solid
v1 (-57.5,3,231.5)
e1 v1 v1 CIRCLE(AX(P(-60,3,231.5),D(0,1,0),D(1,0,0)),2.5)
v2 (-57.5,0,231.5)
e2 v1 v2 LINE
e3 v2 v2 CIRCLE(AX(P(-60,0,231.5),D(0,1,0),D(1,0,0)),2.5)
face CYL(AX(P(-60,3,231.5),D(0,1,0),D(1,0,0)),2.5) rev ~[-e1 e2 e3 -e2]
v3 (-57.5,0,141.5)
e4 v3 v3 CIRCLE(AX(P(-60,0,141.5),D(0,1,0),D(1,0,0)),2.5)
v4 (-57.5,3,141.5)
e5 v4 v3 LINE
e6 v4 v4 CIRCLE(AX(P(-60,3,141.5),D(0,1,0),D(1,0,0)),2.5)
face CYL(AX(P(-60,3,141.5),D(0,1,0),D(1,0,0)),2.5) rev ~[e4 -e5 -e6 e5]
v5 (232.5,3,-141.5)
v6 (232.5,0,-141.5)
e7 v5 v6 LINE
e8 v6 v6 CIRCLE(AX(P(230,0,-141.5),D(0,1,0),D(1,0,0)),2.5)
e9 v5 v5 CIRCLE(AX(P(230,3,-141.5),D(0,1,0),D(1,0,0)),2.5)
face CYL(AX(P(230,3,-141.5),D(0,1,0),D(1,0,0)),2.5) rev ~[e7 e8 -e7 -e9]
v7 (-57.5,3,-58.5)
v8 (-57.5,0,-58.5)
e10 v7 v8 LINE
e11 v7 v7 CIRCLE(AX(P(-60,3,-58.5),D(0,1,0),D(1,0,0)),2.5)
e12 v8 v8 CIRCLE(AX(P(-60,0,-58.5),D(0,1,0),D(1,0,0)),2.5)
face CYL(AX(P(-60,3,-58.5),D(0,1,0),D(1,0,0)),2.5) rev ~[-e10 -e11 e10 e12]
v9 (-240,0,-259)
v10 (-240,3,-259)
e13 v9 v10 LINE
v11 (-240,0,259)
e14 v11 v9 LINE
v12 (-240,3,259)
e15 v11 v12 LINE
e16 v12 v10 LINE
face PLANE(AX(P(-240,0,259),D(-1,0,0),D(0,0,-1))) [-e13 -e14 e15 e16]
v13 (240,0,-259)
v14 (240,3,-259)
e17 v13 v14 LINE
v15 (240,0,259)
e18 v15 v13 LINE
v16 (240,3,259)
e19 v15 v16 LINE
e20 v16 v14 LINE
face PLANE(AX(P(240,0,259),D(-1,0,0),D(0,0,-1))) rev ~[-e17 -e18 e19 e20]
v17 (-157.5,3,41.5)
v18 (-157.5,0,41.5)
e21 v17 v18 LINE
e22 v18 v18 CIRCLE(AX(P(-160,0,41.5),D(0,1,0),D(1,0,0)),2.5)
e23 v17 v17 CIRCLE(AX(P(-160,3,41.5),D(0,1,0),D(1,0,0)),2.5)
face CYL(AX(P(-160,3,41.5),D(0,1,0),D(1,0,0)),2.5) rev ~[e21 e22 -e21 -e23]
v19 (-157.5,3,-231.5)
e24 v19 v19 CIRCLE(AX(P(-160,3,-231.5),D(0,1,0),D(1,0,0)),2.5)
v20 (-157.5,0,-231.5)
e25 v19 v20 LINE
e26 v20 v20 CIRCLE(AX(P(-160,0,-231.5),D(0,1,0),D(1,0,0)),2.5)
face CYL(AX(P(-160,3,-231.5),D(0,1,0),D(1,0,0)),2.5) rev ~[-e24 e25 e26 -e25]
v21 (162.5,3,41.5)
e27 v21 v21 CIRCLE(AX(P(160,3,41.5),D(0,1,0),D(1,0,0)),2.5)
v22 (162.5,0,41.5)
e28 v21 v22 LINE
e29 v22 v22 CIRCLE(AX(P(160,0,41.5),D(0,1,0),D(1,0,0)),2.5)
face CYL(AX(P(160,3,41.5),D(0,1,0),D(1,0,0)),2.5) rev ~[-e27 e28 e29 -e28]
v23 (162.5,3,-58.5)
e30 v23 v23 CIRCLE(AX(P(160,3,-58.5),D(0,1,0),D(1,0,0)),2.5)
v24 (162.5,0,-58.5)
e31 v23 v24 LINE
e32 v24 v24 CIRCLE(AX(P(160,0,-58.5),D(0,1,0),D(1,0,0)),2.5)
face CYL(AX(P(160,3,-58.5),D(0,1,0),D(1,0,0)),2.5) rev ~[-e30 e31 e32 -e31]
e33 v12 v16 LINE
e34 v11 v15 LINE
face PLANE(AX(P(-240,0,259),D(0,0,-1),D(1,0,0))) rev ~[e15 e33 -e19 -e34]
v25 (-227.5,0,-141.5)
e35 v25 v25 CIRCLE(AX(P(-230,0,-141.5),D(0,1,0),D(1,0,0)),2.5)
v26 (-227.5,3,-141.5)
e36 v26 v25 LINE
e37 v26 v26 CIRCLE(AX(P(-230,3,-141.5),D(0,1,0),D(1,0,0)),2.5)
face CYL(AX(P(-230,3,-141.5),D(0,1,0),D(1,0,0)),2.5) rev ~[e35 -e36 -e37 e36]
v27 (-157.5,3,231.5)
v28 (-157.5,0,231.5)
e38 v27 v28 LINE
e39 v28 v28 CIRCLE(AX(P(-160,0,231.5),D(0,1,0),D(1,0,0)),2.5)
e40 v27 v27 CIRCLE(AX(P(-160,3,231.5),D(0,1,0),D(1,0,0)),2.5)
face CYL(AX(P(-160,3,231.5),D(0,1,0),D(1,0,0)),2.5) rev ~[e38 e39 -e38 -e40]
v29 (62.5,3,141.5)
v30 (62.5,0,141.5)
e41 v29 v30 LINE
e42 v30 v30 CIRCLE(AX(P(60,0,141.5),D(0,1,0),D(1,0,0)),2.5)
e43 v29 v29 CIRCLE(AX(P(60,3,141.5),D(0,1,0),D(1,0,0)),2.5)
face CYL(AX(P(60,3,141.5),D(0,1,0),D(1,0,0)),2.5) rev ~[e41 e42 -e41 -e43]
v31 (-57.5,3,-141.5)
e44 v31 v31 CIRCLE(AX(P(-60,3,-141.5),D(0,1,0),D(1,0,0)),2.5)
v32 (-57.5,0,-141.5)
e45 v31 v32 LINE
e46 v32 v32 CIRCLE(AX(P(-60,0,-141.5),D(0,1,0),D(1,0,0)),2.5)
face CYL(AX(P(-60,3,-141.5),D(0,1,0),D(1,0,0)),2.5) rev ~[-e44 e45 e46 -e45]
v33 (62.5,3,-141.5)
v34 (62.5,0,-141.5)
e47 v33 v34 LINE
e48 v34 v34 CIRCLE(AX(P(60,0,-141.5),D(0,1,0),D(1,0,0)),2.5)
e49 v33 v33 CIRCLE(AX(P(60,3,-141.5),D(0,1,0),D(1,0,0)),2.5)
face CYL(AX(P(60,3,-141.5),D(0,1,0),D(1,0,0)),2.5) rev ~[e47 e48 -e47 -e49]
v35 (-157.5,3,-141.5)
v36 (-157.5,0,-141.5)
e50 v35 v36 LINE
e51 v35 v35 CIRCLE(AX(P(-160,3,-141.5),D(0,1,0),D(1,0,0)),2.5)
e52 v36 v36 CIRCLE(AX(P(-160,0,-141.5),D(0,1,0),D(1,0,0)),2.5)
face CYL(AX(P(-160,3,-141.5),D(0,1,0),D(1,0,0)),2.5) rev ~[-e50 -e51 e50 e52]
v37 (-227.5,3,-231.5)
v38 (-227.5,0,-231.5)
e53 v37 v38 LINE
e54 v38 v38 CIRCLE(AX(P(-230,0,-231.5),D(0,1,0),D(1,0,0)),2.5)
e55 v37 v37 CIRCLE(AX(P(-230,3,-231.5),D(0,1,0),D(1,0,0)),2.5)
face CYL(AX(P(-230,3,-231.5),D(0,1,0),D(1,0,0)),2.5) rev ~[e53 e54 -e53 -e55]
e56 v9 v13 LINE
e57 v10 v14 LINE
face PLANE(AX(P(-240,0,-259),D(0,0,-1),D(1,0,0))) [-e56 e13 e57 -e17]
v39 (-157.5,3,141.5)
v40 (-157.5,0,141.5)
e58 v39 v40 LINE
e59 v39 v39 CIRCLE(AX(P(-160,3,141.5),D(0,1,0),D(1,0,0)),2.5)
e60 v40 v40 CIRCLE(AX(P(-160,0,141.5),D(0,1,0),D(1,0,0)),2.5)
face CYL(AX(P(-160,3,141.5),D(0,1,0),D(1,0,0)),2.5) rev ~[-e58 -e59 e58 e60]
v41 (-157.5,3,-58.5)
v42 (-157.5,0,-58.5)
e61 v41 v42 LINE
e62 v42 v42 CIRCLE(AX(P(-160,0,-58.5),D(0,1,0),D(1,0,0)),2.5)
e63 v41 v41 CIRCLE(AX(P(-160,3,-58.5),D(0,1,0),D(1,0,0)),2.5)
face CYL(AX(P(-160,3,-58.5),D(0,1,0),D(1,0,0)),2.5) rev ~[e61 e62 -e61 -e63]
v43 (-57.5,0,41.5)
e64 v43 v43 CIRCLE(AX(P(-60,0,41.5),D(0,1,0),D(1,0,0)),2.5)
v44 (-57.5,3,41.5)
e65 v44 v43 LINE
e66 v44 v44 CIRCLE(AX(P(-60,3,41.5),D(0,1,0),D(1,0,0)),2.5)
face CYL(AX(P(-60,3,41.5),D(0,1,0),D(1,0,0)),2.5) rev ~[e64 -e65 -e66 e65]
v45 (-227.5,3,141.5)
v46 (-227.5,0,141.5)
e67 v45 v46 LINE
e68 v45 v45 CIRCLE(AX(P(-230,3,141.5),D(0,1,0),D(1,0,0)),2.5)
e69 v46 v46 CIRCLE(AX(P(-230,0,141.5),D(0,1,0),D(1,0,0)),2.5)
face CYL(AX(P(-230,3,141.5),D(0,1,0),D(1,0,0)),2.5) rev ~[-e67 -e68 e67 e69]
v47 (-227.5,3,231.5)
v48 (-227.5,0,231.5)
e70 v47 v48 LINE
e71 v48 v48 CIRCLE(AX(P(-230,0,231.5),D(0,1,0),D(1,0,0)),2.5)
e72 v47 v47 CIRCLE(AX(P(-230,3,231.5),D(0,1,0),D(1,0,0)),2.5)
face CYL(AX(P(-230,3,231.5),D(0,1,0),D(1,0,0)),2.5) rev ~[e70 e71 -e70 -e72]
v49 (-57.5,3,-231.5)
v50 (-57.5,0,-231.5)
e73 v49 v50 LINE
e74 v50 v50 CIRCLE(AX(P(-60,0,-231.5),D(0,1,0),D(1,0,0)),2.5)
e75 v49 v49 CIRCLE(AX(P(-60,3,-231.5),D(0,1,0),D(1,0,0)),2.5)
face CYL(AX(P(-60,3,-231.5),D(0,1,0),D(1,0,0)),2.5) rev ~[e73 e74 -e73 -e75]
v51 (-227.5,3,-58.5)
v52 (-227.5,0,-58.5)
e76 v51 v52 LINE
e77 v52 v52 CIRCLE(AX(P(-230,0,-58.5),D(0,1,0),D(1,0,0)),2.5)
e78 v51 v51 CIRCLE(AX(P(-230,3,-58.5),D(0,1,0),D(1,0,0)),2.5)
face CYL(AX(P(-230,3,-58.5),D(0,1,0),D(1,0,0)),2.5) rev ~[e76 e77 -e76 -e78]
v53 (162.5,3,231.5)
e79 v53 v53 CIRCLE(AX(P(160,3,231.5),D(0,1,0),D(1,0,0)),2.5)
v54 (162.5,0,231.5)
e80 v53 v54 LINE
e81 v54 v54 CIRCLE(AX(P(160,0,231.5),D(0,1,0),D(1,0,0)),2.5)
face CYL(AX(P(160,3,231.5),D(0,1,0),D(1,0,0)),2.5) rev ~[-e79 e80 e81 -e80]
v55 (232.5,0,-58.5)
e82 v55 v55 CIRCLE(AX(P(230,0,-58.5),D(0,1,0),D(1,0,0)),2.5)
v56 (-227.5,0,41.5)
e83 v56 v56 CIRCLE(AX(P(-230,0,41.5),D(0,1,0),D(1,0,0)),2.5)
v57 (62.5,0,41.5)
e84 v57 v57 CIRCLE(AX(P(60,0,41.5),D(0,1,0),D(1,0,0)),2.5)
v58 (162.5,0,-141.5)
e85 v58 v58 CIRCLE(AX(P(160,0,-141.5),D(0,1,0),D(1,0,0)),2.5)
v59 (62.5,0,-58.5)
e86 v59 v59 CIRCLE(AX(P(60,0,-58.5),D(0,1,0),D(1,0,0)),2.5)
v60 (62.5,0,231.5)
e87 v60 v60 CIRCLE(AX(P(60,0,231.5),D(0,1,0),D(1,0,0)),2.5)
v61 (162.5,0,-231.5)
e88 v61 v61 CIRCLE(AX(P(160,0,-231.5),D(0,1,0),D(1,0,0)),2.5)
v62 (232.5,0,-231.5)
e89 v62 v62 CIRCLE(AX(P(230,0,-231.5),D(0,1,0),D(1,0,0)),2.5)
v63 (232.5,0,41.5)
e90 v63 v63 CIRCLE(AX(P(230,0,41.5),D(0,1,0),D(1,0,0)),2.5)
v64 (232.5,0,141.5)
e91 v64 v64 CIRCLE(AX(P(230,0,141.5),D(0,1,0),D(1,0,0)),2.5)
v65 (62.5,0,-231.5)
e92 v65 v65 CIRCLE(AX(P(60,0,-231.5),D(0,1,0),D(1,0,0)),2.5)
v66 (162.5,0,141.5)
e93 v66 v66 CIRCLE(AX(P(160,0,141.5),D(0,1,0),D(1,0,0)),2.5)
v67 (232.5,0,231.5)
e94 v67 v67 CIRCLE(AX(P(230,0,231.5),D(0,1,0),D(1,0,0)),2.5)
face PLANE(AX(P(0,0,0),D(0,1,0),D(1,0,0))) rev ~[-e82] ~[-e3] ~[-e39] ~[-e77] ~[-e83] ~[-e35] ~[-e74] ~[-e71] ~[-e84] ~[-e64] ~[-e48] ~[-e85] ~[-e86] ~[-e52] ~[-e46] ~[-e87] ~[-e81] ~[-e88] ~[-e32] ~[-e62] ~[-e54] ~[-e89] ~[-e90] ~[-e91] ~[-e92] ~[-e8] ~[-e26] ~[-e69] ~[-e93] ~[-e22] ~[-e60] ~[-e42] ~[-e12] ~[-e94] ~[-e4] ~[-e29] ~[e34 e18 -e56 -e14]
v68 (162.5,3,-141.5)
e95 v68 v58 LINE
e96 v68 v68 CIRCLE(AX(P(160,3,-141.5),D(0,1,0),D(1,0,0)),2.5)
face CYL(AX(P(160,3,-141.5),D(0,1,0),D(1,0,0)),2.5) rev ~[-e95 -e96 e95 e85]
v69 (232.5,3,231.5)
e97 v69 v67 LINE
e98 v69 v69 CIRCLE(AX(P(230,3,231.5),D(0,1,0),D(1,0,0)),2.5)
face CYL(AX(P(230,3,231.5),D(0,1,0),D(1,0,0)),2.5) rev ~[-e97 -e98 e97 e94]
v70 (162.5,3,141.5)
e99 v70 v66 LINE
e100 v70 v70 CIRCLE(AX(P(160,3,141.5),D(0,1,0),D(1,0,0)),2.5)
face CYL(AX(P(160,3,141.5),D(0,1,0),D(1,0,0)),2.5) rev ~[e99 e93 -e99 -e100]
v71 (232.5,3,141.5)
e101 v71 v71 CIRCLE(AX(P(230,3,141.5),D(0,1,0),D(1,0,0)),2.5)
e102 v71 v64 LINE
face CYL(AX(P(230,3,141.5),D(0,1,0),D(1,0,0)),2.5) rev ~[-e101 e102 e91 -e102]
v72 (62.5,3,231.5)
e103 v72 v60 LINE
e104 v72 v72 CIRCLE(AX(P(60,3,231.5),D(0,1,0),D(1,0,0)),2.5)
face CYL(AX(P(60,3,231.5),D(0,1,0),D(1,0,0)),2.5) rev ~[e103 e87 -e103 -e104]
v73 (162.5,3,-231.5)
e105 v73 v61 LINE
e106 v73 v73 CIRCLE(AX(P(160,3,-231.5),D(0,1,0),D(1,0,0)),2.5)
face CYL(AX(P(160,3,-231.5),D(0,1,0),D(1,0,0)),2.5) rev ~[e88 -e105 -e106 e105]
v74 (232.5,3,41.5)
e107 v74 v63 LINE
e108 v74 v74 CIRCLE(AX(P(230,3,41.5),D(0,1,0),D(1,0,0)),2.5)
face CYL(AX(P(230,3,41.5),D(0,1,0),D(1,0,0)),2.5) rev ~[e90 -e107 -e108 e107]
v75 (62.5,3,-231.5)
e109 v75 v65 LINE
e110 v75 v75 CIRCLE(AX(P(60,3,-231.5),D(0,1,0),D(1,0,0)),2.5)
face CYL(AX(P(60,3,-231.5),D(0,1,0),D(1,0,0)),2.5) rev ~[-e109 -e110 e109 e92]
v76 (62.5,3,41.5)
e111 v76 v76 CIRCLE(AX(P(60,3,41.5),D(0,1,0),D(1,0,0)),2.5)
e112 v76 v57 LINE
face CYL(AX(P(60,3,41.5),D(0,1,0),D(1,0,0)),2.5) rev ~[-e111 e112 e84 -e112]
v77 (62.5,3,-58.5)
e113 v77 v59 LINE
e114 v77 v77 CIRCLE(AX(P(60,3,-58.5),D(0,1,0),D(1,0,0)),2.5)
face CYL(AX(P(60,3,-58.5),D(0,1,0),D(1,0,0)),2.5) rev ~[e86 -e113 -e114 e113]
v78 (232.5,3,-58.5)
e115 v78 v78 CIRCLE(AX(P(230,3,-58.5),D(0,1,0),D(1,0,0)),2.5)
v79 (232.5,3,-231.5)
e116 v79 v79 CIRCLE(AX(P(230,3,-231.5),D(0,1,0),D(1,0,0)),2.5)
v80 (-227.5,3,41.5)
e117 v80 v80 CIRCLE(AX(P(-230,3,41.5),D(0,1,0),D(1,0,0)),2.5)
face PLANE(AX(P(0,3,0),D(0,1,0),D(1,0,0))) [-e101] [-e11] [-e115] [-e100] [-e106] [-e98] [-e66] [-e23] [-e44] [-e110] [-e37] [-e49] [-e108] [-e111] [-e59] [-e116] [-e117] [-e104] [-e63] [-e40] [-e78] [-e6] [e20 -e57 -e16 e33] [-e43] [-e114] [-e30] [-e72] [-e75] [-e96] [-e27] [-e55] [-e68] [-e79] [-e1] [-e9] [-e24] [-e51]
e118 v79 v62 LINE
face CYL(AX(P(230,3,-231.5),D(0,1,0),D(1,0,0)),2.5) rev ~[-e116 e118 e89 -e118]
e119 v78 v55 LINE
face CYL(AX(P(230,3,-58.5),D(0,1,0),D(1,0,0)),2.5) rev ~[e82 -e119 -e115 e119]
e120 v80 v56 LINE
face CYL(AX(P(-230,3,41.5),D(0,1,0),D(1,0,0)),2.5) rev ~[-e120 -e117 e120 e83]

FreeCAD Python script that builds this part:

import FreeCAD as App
import Part
import Sketcher
from FreeCAD import Vector


def add_polygon(sketch, points):
    """Adds a closed chain of lines whose ends are joined by coincident constraints."""
    first, n = sketch.GeometryCount, len(points)
    for a, b in zip(points, points[1:] + points[:1]):
        sketch.addGeometry(Part.LineSegment(App.Vector(*a, 0), App.Vector(*b, 0)), False)
    for i in range(n):
        sketch.addConstraint(Sketcher.Constraint("Coincident", first + i, 2, first + (i + 1) % n, 1))

doc = App.newDocument("Part")
body = doc.addObject("PartDesign::Body", "Body")

# Sketch on XZ plane
sketch1 = body.newObject("Sketcher::SketchObject", "Sketch")
sketch1.AttachmentSupport = (doc.getObject("XZ_Plane"), [""])
sketch1.MapMode = "FlatFace"
add_polygon(sketch1, [(-240, -259), (-240, 259), (240, 259), (240, -259)])  # lines 0-3
sketch1.addConstraint(Sketcher.Constraint("Vertical", 0))
sketch1.addConstraint(Sketcher.Constraint("Horizontal", 1))
sketch1.addConstraint(Sketcher.Constraint("Vertical", 2))
sketch1.addConstraint(Sketcher.Constraint("Horizontal", 3))
sketch1.addConstraint(Sketcher.Constraint("Symmetric", 0, 2, 2, 2, -1, 1))
sketch1.addConstraint(Sketcher.Constraint("DistanceX", 1, 1, 1, 2, 480.0))
sketch1.addConstraint(Sketcher.Constraint("DistanceY", 0, 1, 0, 2, 518.0))
pad1 = body.newObject("PartDesign::Pad", "Pad")
pad1.Profile = sketch1
pad1.Length = 3
pad1.Reversed = True

# Sketch on XZ plane
sketch2 = body.newObject("Sketcher::SketchObject", "Sketch001")
sketch2.AttachmentSupport = (doc.getObject("XZ_Plane"), [""])
sketch2.MapMode = "FlatFace"
sketch2.AttachmentOffset = App.Placement(Vector(0, 0, -3), App.Rotation())
sketch2.addGeometry(Part.Circle(Vector(-230, 231.5, 0), Vector(0, 0, 1), 2.5), False)
sketch2.addGeometry(Part.Circle(Vector(-230, -231.5, 0), Vector(0, 0, 1), 2.5), False)
sketch2.addGeometry(Part.Circle(Vector(-230, 141.5, 0), Vector(0, 0, 1), 2.5), False)
sketch2.addGeometry(Part.Circle(Vector(-230, -141.5, 0), Vector(0, 0, 1), 2.5), False)
sketch2.addGeometry(Part.Circle(Vector(-230, 41.5, 0), Vector(0, 0, 1), 2.5), False)
sketch2.addGeometry(Part.Circle(Vector(-230, -58.5, 0), Vector(0, 0, 1), 2.5), False)
sketch2.addGeometry(Part.Circle(Vector(-160, -231.5, 0), Vector(0, 0, 1), 2.5), False)
sketch2.addGeometry(Part.Circle(Vector(-160, -141.5, 0), Vector(0, 0, 1), 2.5), False)
sketch2.addGeometry(Part.Circle(Vector(-160, -58.5, 0), Vector(0, 0, 1), 2.5), False)
sketch2.addGeometry(Part.Circle(Vector(-160, 41.5, 0), Vector(0, 0, 1), 2.5), False)
sketch2.addGeometry(Part.Circle(Vector(-160, 141.5, 0), Vector(0, 0, 1), 2.5), False)
sketch2.addGeometry(Part.Circle(Vector(-160, 231.5, 0), Vector(0, 0, 1), 2.5), False)
sketch2.addGeometry(Part.Circle(Vector(160, 231.5, 0), Vector(0, 0, 1), 2.5), False)
sketch2.addGeometry(Part.Circle(Vector(160, 141.5, 0), Vector(0, 0, 1), 2.5), False)
sketch2.addGeometry(Part.Circle(Vector(160, 41.5, 0), Vector(0, 0, 1), 2.5), False)
sketch2.addGeometry(Part.Circle(Vector(160, -58.5, 0), Vector(0, 0, 1), 2.5), False)
sketch2.addGeometry(Part.Circle(Vector(160, -141.5, 0), Vector(0, 0, 1), 2.5), False)
sketch2.addGeometry(Part.Circle(Vector(160, -231.5, 0), Vector(0, 0, 1), 2.5), False)
sketch2.addGeometry(Part.Circle(Vector(230, 231.5, 0), Vector(0, 0, 1), 2.5), False)
sketch2.addGeometry(Part.Circle(Vector(230, 141.5, 0), Vector(0, 0, 1), 2.5), False)
sketch2.addGeometry(Part.Circle(Vector(230, 41.5, 0), Vector(0, 0, 1), 2.5), False)
sketch2.addGeometry(Part.Circle(Vector(230, -58.5, 0), Vector(0, 0, 1), 2.5), False)
sketch2.addGeometry(Part.Circle(Vector(230, -141.5, 0), Vector(0, 0, 1), 2.5), False)
sketch2.addGeometry(Part.Circle(Vector(230, -231.5, 0), Vector(0, 0, 1), 2.5), False)
sketch2.addGeometry(Part.Circle(Vector(-60, -231.5, 0), Vector(0, 0, 1), 2.5), False)
sketch2.addGeometry(Part.Circle(Vector(-60, -141.5, 0), Vector(0, 0, 1), 2.5), False)
sketch2.addGeometry(Part.Circle(Vector(-60, -58.5, 0), Vector(0, 0, 1), 2.5), False)
sketch2.addGeometry(Part.Circle(Vector(-60, 41.5, 0), Vector(0, 0, 1), 2.5), False)
sketch2.addGeometry(Part.Circle(Vector(-60, 141.5, 0), Vector(0, 0, 1), 2.5), False)
sketch2.addGeometry(Part.Circle(Vector(-60, 231.5, 0), Vector(0, 0, 1), 2.5), False)
sketch2.addGeometry(Part.Circle(Vector(60, 231.5, 0), Vector(0, 0, 1), 2.5), False)
sketch2.addGeometry(Part.Circle(Vector(60, 141.5, 0), Vector(0, 0, 1), 2.5), False)
sketch2.addGeometry(Part.Circle(Vector(60, 41.5, 0), Vector(0, 0, 1), 2.5), False)
sketch2.addGeometry(Part.Circle(Vector(60, -58.5, 0), Vector(0, 0, 1), 2.5), False)
sketch2.addGeometry(Part.Circle(Vector(60, -141.5, 0), Vector(0, 0, 1), 2.5), False)
sketch2.addGeometry(Part.Circle(Vector(60, -231.5, 0), Vector(0, 0, 1), 2.5), False)
sketch2.addConstraint(Sketcher.Constraint("Equal", 0, 1))
sketch2.addConstraint(Sketcher.Constraint("Equal", 1, 2))
sketch2.addConstraint(Sketcher.Constraint("Equal", 2, 3))
sketch2.addConstraint(Sketcher.Constraint("Equal", 3, 4))
sketch2.addConstraint(Sketcher.Constraint("Equal", 4, 5))
sketch2.addConstraint(Sketcher.Constraint("Equal", 5, 6))
sketch2.addConstraint(Sketcher.Constraint("Equal", 6, 7))
sketch2.addConstraint(Sketcher.Constraint("Equal", 7, 8))
sketch2.addConstraint(Sketcher.Constraint("Equal", 8, 9))
sketch2.addConstraint(Sketcher.Constraint("Equal", 9, 10))
sketch2.addConstraint(Sketcher.Constraint("Equal", 10, 11))
sketch2.addConstraint(Sketcher.Constraint("Equal", 11, 12))
sketch2.addConstraint(Sketcher.Constraint("Equal", 12, 13))
sketch2.addConstraint(Sketcher.Constraint("Equal", 13, 14))
sketch2.addConstraint(Sketcher.Constraint("Equal", 14, 15))
sketch2.addConstraint(Sketcher.Constraint("Equal", 15, 16))
sketch2.addConstraint(Sketcher.Constraint("Equal", 16, 17))
sketch2.addConstraint(Sketcher.Constraint("Equal", 17, 18))
sketch2.addConstraint(Sketcher.Constraint("Equal", 18, 19))
sketch2.addConstraint(Sketcher.Constraint("Equal", 19, 20))
sketch2.addConstraint(Sketcher.Constraint("Equal", 20, 21))
sketch2.addConstraint(Sketcher.Constraint("Equal", 21, 22))
sketch2.addConstraint(Sketcher.Constraint("Equal", 22, 23))
sketch2.addConstraint(Sketcher.Constraint("Equal", 23, 24))
sketch2.addConstraint(Sketcher.Constraint("Equal", 24, 25))
sketch2.addConstraint(Sketcher.Constraint("Equal", 25, 26))
sketch2.addConstraint(Sketcher.Constraint("Equal", 26, 27))
sketch2.addConstraint(Sketcher.Constraint("Equal", 27, 28))
sketch2.addConstraint(Sketcher.Constraint("Equal", 28, 29))
sketch2.addConstraint(Sketcher.Constraint("Equal", 29, 30))
sketch2.addConstraint(Sketcher.Constraint("Equal", 30, 31))
sketch2.addConstraint(Sketcher.Constraint("Equal", 31, 32))
sketch2.addConstraint(Sketcher.Constraint("Equal", 32, 33))
sketch2.addConstraint(Sketcher.Constraint("Equal", 33, 34))
sketch2.addConstraint(Sketcher.Constraint("Equal", 34, 35))
sketch2.addConstraint(Sketcher.Constraint("Symmetric", 6, 3, 12, 3, -1, 1))
sketch2.addConstraint(Sketcher.Constraint("Symmetric", 7, 3, 13, 3, -1, 1))
sketch2.addConstraint(Sketcher.Constraint("Symmetric", 10, 3, 16, 3, -1, 1))
sketch2.addConstraint(Sketcher.Constraint("Symmetric", 11, 3, 17, 3, -1, 1))
sketch2.addConstraint(Sketcher.Constraint("Symmetric", 1, 3, 18, 3, -1, 1))
sketch2.addConstraint(Sketcher.Constraint("Symmetric", 3, 3, 19, 3, -1, 1))
sketch2.addConstraint(Sketcher.Constraint("Symmetric", 2, 3, 22, 3, -1, 1))
sketch2.addConstraint(Sketcher.Constraint("Symmetric", 0, 3, 23, 3, -1, 1))
sketch2.addConstraint(Sketcher.Constraint("Symmetric", 24, 3, 30, 3, -1, 1))
sketch2.addConstraint(Sketcher.Constraint("Symmetric", 25, 3, 31, 3, -1, 1))
sketch2.addConstraint(Sketcher.Constraint("Symmetric", 28, 3, 34, 3, -1, 1))
sketch2.addConstraint(Sketcher.Constraint("Symmetric", 29, 3, 35, 3, -1, 1))
sketch2.addConstraint(Sketcher.Constraint("Symmetric", 11, 3, 12, 3, -2))
sketch2.addConstraint(Sketcher.Constraint("Symmetric", 10, 3, 13, 3, -2))
sketch2.addConstraint(Sketcher.Constraint("Symmetric", 9, 3, 14, 3, -2))
sketch2.addConstraint(Sketcher.Constraint("Symmetric", 8, 3, 15, 3, -2))
sketch2.addConstraint(Sketcher.Constraint("Symmetric", 0, 3, 18, 3, -2))
sketch2.addConstraint(Sketcher.Constraint("Symmetric", 2, 3, 19, 3, -2))
sketch2.addConstraint(Sketcher.Constraint("Symmetric", 4, 3, 20, 3, -2))
sketch2.addConstraint(Sketcher.Constraint("Symmetric", 5, 3, 21, 3, -2))
sketch2.addConstraint(Sketcher.Constraint("Symmetric", 29, 3, 30, 3, -2))
sketch2.addConstraint(Sketcher.Constraint("Symmetric", 28, 3, 31, 3, -2))
sketch2.addConstraint(Sketcher.Constraint("Symmetric", 27, 3, 32, 3, -2))
sketch2.addConstraint(Sketcher.Constraint("Symmetric", 26, 3, 33, 3, -2))
sketch2.addConstraint(Sketcher.Constraint("Horizontal", 1, 3, 6, 3))
sketch2.addConstraint(Sketcher.Constraint("Horizontal", 3, 3, 7, 3))
sketch2.addConstraint(Sketcher.Constraint("Horizontal", 5, 3, 8, 3))
sketch2.addConstraint(Sketcher.Constraint("Horizontal", 4, 3, 9, 3))
sketch2.addConstraint(Sketcher.Constraint("Horizontal", 23, 3, 24, 3))
sketch2.addConstraint(Sketcher.Constraint("Horizontal", 22, 3, 25, 3))
sketch2.addConstraint(Sketcher.Constraint("Horizontal", 21, 3, 26, 3))
sketch2.addConstraint(Sketcher.Constraint("Horizontal", 20, 3, 27, 3))
sketch2.addConstraint(Sketcher.Constraint("Vertical", 1, 3, 2, 3))
sketch2.addConstraint(Sketcher.Constraint("Vertical", 3, 3, 4, 3))
sketch2.addConstraint(Sketcher.Constraint("Vertical", 4, 3, 5, 3))
sketch2.addConstraint(Sketcher.Constraint("Vertical", 6, 3, 7, 3))
sketch2.addConstraint(Sketcher.Constraint("Vertical", 7, 3, 8, 3))
sketch2.addConstraint(Sketcher.Constraint("Vertical", 8, 3, 9, 3))
sketch2.addConstraint(Sketcher.Constraint("Vertical", 24, 3, 25, 3))
sketch2.addConstraint(Sketcher.Constraint("Vertical", 25, 3, 26, 3))
sketch2.addConstraint(Sketcher.Constraint("Vertical", 26, 3, 27, 3))
sketch2.addConstraint(Sketcher.Constraint("Diameter", 0, 5.0))
sketch2.addConstraint(Sketcher.Constraint("DistanceX", 0, 3, -1, 1, 230.0))
sketch2.addConstraint(Sketcher.Constraint("DistanceX", 6, 3, -1, 1, 160.0))
sketch2.addConstraint(Sketcher.Constraint("DistanceX", 24, 3, -1, 1, 60.0))
sketch2.addConstraint(Sketcher.Constraint("DistanceY", 1, 3, 0, 3, 463.0))
sketch2.addConstraint(Sketcher.Constraint("DistanceY", 2, 3, 0, 3, 90.0))
sketch2.addConstraint(Sketcher.Constraint("DistanceY", 4, 3, 2, 3, 100.0))
sketch2.addConstraint(Sketcher.Constraint("DistanceY", 3, 3, 5, 3, 83.0))
pocket1 = body.newObject("PartDesign::Pocket", "Pocket")
pocket1.Profile = sketch2
pocket1.Length = 3
pocket1.Reversed = True

doc.recompute()
